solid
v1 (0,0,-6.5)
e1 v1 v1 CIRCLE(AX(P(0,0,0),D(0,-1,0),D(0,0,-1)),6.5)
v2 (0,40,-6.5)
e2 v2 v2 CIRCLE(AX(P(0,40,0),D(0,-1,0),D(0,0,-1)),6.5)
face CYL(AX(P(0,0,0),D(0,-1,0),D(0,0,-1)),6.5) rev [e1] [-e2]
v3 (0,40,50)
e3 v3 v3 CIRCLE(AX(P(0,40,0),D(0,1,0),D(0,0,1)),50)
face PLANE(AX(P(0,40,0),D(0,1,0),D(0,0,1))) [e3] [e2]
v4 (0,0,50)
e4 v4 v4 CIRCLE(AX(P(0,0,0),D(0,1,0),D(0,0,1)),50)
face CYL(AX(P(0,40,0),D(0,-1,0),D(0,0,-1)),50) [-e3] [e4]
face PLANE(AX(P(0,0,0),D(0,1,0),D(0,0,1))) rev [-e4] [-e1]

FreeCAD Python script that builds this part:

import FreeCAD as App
import Part
import Sketcher
from FreeCAD import Vector

doc = App.newDocument("Part")
body = doc.addObject("PartDesign::Body", "Body")

# Sketch on XZ plane
sketch1 = body.newObject("Sketcher::SketchObject", "Sketch")
sketch1.AttachmentSupport = (doc.getObject("XZ_Plane"), [""])
sketch1.MapMode = "FlatFace"
sketch1.addGeometry(Part.Circle(Vector(0, 0, 0), Vector(0, 0, 1), 50), False)
sketch1.addConstraint([
    Sketcher.Constraint("Coincident", 0, 3, -1, 1),
    Sketcher.Constraint("Diameter", 0, 100.0),
])
pad1 = body.newObject("PartDesign::Pad", "Pad")
pad1.Profile = sketch1
pad1.Length = 40
pad1.Reversed = True

# Sketch on XZ plane
sketch2 = body.newObject("Sketcher::SketchObject", "Sketch001")
sketch2.AttachmentSupport = (doc.getObject("XZ_Plane"), [""])
sketch2.MapMode = "FlatFace"
sketch2.addGeometry(Part.Circle(Vector(0, 0, 0), Vector(0, 0, 1), 6), False)
sketch2.addConstraint([
    Sketcher.Constraint("Coincident", 0, 3, -1, 1),
    Sketcher.Constraint("Diameter", 0, 13.0),
])
doc.recompute()
hole = body.newObject("PartDesign::Hole", "Hole")
hole.Profile = sketch2
hole.ThreadType = "None"
hole.Diameter = 13
hole.DepthType = "ThroughAll"

doc.recompute()
